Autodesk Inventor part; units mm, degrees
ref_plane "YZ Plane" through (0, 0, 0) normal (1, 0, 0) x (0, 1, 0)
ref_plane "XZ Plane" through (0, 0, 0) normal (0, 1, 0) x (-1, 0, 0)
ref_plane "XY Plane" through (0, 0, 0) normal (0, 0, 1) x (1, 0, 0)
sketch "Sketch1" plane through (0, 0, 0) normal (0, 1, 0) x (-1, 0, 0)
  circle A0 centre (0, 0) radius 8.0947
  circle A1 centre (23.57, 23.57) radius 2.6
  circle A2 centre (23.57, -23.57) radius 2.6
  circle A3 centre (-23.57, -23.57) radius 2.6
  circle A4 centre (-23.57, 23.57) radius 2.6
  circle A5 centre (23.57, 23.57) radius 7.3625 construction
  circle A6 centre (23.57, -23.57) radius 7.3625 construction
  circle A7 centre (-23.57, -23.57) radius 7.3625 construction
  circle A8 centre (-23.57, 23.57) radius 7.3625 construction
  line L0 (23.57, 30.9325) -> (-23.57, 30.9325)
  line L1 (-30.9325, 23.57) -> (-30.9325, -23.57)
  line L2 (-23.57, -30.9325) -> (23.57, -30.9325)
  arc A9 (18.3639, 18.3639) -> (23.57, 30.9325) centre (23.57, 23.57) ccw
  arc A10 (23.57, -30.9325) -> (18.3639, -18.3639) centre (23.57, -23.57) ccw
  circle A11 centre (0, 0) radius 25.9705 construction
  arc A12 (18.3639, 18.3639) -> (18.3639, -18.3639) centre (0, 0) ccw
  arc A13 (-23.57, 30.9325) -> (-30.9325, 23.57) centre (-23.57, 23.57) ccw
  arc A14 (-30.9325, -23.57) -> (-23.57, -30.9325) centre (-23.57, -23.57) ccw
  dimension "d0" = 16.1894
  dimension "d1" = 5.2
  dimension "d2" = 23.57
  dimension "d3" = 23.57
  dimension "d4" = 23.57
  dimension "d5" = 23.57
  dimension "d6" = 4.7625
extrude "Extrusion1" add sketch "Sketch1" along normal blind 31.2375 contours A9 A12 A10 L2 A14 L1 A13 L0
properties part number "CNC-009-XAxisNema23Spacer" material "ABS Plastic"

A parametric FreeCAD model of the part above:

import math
import FreeCAD as App
import Part
import Sketcher

doc = App.newDocument("Part")
body = doc.addObject("PartDesign::Body", "Body")

# Sketch on XZ plane
sketch1 = body.newObject("Sketcher::SketchObject", "Sketch")
sketch1.AttachmentSupport = (doc.getObject("XZ_Plane"), [""])
sketch1.MapMode = "FlatFace"
sketch1.addGeometry([
    Part.ArcOfCircle(Part.Circle(App.Vector(-23.6, 23.6, 0), App.Vector(0, 0, 1), 7.4), math.radians(90), math.radians(315)),  # 0
    Part.LineSegment(App.Vector(-23.6, 30.9, 0), App.Vector(23.6, 30.9, 0)),  # 1
    Part.ArcOfCircle(Part.Circle(App.Vector(23.6, 23.6, 0), App.Vector(0, 0, 1), 7.4), math.radians(0), math.radians(90)),  # 2
    Part.LineSegment(App.Vector(30.9, 23.6, 0), App.Vector(30.9, -23.6, 0)),  # 3
    Part.ArcOfCircle(Part.Circle(App.Vector(23.6, -23.6, 0), App.Vector(0, 0, 1), 7.4), math.radians(-90), math.radians(0)),  # 4
    Part.LineSegment(App.Vector(23.6, -30.9, 0), App.Vector(-23.6, -30.9, 0)),  # 5
    Part.ArcOfCircle(Part.Circle(App.Vector(-23.6, -23.6, 0), App.Vector(0, 0, 1), 7.4), math.radians(45), math.radians(270)),  # 6
    Part.ArcOfCircle(Part.Circle(App.Vector(0, 0, 0), App.Vector(0, 0, 1), 26), math.radians(-135), math.radians(135)),  # 7
    Part.Circle(App.Vector(23.6, -23.6, 0), App.Vector(0, 0, 1), 2.6),  # 8
    Part.Circle(App.Vector(-23.6, -23.6, 0), App.Vector(0, 0, 1), 2.6),  # 9
    Part.Circle(App.Vector(23.6, 23.6, 0), App.Vector(0, 0, 1), 2.6),  # 10
    Part.Circle(App.Vector(-23.6, 23.6, 0), App.Vector(0, 0, 1), 2.6),  # 11
], False)
sketch1.addConstraint([
    Sketcher.Constraint("Tangent", 0, 1, 1, 1),
    Sketcher.Constraint("Tangent", 1, 2, 2, 2),
    Sketcher.Constraint("Tangent", 2, 1, 3, 1),
    Sketcher.Constraint("Tangent", 3, 2, 4, 2),
    Sketcher.Constraint("Tangent", 4, 1, 5, 1),
    Sketcher.Constraint("Tangent", 5, 2, 6, 2),
    Sketcher.Constraint("Tangent", 6, 1, 7, 1),
    Sketcher.Constraint("Tangent", 7, 2, 0, 2),
    Sketcher.Constraint("Horizontal", 1),
    Sketcher.Constraint("Vertical", 3),
    Sketcher.Constraint("Horizontal", 5),
    Sketcher.Constraint("Coincident", 7, 3, -1, 1),
    Sketcher.Constraint("Coincident", 8, 3, 4, 3),
    Sketcher.Constraint("Coincident", 9, 3, 6, 3),
    Sketcher.Constraint("Coincident", 10, 3, 2, 3),
    Sketcher.Constraint("Coincident", 11, 3, 0, 3),
    Sketcher.Constraint("Equal", 0, 2),
    Sketcher.Constraint("Equal", 2, 4),
    Sketcher.Constraint("Equal", 4, 6),
    Sketcher.Constraint("Equal", 8, 9),
    Sketcher.Constraint("Equal", 9, 10),
    Sketcher.Constraint("Equal", 10, 11),
    Sketcher.Constraint("Symmetric", 0, 3, 4, 3, -1, 1),
    Sketcher.Constraint("Equal", 5, 3),
    Sketcher.Constraint("Diameter", 8, 5.2),
    Sketcher.Constraint("DistanceX", 0, 3, -1, 1, 23.57),
    Sketcher.Constraint("Radius", 0, 7.3625),
])
pad1 = body.newObject("PartDesign::Pad", "Pad")
pad1.Profile = sketch1
pad1.Length = 31.2375
pad1.Reversed = True

doc.recompute()
